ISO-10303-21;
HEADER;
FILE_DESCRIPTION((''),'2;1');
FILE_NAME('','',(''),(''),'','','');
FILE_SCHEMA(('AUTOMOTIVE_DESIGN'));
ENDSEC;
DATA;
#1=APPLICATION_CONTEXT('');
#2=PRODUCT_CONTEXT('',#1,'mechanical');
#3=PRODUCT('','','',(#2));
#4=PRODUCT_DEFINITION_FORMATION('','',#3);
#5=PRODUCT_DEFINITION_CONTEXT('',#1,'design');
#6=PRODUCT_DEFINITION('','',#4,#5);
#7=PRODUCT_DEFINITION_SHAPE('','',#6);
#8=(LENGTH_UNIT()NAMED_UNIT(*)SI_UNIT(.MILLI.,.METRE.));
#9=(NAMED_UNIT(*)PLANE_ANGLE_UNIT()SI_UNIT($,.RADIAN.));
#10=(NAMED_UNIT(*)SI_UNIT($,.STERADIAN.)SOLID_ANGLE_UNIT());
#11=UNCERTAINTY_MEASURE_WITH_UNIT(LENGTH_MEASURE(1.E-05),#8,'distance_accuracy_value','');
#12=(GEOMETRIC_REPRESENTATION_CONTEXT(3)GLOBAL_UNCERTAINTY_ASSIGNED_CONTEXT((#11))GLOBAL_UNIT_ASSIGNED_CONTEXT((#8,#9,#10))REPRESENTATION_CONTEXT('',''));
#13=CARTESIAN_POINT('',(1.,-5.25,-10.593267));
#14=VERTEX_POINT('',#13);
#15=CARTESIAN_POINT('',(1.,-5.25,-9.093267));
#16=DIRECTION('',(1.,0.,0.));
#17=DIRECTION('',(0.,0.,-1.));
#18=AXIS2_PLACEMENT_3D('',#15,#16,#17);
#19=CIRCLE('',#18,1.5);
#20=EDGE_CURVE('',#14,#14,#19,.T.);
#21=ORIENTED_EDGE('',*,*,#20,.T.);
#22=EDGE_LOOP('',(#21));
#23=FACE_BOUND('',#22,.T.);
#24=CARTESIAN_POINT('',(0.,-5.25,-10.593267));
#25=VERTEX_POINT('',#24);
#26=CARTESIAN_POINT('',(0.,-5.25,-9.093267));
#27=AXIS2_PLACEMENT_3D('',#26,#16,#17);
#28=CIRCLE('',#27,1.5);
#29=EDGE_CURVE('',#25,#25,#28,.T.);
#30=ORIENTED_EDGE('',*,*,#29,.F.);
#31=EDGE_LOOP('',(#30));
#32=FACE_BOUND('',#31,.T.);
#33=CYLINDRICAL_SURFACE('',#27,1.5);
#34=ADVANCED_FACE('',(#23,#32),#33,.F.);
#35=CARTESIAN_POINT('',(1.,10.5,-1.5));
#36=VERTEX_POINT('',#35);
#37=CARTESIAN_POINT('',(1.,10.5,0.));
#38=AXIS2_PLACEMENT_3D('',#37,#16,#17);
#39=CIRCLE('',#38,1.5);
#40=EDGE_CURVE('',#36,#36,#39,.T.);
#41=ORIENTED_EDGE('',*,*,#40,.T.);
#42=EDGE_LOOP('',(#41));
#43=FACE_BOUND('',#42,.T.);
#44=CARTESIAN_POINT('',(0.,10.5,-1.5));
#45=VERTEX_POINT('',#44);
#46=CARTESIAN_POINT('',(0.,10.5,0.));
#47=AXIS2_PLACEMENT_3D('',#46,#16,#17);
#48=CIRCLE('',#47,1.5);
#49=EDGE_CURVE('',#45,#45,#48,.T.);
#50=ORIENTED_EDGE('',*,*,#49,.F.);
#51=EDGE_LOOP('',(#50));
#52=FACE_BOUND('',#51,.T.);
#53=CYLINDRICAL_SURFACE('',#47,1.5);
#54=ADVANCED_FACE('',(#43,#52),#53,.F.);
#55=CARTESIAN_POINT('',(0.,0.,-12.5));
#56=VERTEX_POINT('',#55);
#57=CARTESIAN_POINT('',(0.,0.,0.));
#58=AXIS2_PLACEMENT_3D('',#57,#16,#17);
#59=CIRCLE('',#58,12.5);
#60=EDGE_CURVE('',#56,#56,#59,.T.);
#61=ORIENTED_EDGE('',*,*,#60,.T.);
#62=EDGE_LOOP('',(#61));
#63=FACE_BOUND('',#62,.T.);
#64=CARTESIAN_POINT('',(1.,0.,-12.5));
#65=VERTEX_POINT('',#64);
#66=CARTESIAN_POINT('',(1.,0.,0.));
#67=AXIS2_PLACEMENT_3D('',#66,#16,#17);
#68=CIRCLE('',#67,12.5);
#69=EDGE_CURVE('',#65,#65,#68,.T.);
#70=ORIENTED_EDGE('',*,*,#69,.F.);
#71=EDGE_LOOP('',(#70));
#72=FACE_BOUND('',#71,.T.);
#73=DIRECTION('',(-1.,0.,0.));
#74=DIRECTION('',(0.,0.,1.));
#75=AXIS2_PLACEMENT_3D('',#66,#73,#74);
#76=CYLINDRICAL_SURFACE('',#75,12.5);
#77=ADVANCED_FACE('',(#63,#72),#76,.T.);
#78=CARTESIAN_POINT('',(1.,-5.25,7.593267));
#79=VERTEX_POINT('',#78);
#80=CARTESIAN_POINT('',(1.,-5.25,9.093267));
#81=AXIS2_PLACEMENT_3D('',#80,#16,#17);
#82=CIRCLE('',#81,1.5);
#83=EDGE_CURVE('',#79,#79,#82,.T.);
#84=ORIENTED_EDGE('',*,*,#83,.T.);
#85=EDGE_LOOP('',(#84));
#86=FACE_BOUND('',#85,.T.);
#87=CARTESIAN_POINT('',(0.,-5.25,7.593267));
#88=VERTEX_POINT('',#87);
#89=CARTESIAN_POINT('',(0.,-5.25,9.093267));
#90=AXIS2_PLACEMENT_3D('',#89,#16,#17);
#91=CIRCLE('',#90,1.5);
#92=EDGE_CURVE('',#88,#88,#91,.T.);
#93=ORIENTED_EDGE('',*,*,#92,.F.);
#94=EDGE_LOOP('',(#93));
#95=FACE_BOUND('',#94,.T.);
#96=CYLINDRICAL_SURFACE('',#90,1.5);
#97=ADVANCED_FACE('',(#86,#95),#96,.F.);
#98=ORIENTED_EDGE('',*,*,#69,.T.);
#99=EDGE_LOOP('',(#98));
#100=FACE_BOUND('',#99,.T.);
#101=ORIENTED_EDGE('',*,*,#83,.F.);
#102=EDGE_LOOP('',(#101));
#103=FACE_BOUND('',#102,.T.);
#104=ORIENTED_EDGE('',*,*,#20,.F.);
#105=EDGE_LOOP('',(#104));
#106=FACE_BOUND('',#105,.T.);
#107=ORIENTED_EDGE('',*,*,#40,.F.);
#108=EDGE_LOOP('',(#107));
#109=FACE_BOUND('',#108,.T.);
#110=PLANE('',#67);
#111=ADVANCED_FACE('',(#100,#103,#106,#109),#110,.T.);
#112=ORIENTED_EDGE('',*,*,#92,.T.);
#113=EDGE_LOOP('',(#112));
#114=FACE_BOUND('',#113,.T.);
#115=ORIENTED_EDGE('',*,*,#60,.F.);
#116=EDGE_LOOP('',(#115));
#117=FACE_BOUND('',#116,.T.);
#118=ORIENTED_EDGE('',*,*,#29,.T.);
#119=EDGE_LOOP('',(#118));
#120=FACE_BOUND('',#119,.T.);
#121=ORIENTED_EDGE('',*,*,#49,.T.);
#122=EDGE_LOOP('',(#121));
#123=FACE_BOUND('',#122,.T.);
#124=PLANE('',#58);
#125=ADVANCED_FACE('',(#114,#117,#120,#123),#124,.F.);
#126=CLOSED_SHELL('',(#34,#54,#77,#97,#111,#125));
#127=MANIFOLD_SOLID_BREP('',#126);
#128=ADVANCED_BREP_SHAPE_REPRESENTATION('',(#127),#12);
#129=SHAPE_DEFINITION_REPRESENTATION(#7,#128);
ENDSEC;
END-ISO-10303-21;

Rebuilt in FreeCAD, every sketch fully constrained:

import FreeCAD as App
import Part
import Sketcher
from FreeCAD import Vector

doc = App.newDocument("Part")
body = doc.addObject("PartDesign::Body", "Body")

# Sketch on YZ plane
sketch1 = body.newObject("Sketcher::SketchObject", "Sketch")
sketch1.AttachmentSupport = (doc.getObject("YZ_Plane"), [""])
sketch1.MapMode = "FlatFace"
sketch1.addGeometry(Part.Circle(Vector(0, 0, 0), Vector(0, 0, 1), 12), False)
sketch1.addConstraint([
    Sketcher.Constraint("Coincident", 0, 3, -1, 1),
    Sketcher.Constraint("Diameter", 0, 25.0),
])
pad1 = body.newObject("PartDesign::Pad", "Pad")
pad1.Profile = sketch1
pad1.Length = 1

# Sketch on YZ plane
sketch2 = body.newObject("Sketcher::SketchObject", "Sketch001")
sketch2.AttachmentSupport = (doc.getObject("YZ_Plane"), [""])
sketch2.MapMode = "FlatFace"
sketch2.AttachmentOffset = App.Placement(Vector(0, 0, 1), App.Rotation())
sketch2.addGeometry([
    Part.Circle(Vector(10.5, 0, 0), Vector(0, 0, 1), 1.5),
    Part.Circle(Vector(-5.2, -9.1, 0), Vector(0, 0, 1), 1.5),
    Part.Circle(Vector(-5.2, 9.1, 0), Vector(0, 0, 1), 1.5),
], False)
sketch2.addConstraint([
    Sketcher.Constraint("Equal", 0, 1),
    Sketcher.Constraint("Equal", 1, 2),
    Sketcher.Constraint("Symmetric", 1, 3, 2, 3, -1),
    Sketcher.Constraint("PointOnObject", 0, 3, -1),
    Sketcher.Constraint("Diameter", 0, 3.0),
    Sketcher.Constraint("DistanceX", -1, 1, 0, 3, 10.5),
    Sketcher.Constraint("DistanceX", 1, 3, -1, 1, 5.25),
    Sketcher.Constraint("DistanceY", 1, 3, -1, 1, 9.093267),
])
pocket1 = body.newObject("PartDesign::Pocket", "Pocket")
pocket1.Profile = sketch2
pocket1.Length = 1

doc.recompute()
